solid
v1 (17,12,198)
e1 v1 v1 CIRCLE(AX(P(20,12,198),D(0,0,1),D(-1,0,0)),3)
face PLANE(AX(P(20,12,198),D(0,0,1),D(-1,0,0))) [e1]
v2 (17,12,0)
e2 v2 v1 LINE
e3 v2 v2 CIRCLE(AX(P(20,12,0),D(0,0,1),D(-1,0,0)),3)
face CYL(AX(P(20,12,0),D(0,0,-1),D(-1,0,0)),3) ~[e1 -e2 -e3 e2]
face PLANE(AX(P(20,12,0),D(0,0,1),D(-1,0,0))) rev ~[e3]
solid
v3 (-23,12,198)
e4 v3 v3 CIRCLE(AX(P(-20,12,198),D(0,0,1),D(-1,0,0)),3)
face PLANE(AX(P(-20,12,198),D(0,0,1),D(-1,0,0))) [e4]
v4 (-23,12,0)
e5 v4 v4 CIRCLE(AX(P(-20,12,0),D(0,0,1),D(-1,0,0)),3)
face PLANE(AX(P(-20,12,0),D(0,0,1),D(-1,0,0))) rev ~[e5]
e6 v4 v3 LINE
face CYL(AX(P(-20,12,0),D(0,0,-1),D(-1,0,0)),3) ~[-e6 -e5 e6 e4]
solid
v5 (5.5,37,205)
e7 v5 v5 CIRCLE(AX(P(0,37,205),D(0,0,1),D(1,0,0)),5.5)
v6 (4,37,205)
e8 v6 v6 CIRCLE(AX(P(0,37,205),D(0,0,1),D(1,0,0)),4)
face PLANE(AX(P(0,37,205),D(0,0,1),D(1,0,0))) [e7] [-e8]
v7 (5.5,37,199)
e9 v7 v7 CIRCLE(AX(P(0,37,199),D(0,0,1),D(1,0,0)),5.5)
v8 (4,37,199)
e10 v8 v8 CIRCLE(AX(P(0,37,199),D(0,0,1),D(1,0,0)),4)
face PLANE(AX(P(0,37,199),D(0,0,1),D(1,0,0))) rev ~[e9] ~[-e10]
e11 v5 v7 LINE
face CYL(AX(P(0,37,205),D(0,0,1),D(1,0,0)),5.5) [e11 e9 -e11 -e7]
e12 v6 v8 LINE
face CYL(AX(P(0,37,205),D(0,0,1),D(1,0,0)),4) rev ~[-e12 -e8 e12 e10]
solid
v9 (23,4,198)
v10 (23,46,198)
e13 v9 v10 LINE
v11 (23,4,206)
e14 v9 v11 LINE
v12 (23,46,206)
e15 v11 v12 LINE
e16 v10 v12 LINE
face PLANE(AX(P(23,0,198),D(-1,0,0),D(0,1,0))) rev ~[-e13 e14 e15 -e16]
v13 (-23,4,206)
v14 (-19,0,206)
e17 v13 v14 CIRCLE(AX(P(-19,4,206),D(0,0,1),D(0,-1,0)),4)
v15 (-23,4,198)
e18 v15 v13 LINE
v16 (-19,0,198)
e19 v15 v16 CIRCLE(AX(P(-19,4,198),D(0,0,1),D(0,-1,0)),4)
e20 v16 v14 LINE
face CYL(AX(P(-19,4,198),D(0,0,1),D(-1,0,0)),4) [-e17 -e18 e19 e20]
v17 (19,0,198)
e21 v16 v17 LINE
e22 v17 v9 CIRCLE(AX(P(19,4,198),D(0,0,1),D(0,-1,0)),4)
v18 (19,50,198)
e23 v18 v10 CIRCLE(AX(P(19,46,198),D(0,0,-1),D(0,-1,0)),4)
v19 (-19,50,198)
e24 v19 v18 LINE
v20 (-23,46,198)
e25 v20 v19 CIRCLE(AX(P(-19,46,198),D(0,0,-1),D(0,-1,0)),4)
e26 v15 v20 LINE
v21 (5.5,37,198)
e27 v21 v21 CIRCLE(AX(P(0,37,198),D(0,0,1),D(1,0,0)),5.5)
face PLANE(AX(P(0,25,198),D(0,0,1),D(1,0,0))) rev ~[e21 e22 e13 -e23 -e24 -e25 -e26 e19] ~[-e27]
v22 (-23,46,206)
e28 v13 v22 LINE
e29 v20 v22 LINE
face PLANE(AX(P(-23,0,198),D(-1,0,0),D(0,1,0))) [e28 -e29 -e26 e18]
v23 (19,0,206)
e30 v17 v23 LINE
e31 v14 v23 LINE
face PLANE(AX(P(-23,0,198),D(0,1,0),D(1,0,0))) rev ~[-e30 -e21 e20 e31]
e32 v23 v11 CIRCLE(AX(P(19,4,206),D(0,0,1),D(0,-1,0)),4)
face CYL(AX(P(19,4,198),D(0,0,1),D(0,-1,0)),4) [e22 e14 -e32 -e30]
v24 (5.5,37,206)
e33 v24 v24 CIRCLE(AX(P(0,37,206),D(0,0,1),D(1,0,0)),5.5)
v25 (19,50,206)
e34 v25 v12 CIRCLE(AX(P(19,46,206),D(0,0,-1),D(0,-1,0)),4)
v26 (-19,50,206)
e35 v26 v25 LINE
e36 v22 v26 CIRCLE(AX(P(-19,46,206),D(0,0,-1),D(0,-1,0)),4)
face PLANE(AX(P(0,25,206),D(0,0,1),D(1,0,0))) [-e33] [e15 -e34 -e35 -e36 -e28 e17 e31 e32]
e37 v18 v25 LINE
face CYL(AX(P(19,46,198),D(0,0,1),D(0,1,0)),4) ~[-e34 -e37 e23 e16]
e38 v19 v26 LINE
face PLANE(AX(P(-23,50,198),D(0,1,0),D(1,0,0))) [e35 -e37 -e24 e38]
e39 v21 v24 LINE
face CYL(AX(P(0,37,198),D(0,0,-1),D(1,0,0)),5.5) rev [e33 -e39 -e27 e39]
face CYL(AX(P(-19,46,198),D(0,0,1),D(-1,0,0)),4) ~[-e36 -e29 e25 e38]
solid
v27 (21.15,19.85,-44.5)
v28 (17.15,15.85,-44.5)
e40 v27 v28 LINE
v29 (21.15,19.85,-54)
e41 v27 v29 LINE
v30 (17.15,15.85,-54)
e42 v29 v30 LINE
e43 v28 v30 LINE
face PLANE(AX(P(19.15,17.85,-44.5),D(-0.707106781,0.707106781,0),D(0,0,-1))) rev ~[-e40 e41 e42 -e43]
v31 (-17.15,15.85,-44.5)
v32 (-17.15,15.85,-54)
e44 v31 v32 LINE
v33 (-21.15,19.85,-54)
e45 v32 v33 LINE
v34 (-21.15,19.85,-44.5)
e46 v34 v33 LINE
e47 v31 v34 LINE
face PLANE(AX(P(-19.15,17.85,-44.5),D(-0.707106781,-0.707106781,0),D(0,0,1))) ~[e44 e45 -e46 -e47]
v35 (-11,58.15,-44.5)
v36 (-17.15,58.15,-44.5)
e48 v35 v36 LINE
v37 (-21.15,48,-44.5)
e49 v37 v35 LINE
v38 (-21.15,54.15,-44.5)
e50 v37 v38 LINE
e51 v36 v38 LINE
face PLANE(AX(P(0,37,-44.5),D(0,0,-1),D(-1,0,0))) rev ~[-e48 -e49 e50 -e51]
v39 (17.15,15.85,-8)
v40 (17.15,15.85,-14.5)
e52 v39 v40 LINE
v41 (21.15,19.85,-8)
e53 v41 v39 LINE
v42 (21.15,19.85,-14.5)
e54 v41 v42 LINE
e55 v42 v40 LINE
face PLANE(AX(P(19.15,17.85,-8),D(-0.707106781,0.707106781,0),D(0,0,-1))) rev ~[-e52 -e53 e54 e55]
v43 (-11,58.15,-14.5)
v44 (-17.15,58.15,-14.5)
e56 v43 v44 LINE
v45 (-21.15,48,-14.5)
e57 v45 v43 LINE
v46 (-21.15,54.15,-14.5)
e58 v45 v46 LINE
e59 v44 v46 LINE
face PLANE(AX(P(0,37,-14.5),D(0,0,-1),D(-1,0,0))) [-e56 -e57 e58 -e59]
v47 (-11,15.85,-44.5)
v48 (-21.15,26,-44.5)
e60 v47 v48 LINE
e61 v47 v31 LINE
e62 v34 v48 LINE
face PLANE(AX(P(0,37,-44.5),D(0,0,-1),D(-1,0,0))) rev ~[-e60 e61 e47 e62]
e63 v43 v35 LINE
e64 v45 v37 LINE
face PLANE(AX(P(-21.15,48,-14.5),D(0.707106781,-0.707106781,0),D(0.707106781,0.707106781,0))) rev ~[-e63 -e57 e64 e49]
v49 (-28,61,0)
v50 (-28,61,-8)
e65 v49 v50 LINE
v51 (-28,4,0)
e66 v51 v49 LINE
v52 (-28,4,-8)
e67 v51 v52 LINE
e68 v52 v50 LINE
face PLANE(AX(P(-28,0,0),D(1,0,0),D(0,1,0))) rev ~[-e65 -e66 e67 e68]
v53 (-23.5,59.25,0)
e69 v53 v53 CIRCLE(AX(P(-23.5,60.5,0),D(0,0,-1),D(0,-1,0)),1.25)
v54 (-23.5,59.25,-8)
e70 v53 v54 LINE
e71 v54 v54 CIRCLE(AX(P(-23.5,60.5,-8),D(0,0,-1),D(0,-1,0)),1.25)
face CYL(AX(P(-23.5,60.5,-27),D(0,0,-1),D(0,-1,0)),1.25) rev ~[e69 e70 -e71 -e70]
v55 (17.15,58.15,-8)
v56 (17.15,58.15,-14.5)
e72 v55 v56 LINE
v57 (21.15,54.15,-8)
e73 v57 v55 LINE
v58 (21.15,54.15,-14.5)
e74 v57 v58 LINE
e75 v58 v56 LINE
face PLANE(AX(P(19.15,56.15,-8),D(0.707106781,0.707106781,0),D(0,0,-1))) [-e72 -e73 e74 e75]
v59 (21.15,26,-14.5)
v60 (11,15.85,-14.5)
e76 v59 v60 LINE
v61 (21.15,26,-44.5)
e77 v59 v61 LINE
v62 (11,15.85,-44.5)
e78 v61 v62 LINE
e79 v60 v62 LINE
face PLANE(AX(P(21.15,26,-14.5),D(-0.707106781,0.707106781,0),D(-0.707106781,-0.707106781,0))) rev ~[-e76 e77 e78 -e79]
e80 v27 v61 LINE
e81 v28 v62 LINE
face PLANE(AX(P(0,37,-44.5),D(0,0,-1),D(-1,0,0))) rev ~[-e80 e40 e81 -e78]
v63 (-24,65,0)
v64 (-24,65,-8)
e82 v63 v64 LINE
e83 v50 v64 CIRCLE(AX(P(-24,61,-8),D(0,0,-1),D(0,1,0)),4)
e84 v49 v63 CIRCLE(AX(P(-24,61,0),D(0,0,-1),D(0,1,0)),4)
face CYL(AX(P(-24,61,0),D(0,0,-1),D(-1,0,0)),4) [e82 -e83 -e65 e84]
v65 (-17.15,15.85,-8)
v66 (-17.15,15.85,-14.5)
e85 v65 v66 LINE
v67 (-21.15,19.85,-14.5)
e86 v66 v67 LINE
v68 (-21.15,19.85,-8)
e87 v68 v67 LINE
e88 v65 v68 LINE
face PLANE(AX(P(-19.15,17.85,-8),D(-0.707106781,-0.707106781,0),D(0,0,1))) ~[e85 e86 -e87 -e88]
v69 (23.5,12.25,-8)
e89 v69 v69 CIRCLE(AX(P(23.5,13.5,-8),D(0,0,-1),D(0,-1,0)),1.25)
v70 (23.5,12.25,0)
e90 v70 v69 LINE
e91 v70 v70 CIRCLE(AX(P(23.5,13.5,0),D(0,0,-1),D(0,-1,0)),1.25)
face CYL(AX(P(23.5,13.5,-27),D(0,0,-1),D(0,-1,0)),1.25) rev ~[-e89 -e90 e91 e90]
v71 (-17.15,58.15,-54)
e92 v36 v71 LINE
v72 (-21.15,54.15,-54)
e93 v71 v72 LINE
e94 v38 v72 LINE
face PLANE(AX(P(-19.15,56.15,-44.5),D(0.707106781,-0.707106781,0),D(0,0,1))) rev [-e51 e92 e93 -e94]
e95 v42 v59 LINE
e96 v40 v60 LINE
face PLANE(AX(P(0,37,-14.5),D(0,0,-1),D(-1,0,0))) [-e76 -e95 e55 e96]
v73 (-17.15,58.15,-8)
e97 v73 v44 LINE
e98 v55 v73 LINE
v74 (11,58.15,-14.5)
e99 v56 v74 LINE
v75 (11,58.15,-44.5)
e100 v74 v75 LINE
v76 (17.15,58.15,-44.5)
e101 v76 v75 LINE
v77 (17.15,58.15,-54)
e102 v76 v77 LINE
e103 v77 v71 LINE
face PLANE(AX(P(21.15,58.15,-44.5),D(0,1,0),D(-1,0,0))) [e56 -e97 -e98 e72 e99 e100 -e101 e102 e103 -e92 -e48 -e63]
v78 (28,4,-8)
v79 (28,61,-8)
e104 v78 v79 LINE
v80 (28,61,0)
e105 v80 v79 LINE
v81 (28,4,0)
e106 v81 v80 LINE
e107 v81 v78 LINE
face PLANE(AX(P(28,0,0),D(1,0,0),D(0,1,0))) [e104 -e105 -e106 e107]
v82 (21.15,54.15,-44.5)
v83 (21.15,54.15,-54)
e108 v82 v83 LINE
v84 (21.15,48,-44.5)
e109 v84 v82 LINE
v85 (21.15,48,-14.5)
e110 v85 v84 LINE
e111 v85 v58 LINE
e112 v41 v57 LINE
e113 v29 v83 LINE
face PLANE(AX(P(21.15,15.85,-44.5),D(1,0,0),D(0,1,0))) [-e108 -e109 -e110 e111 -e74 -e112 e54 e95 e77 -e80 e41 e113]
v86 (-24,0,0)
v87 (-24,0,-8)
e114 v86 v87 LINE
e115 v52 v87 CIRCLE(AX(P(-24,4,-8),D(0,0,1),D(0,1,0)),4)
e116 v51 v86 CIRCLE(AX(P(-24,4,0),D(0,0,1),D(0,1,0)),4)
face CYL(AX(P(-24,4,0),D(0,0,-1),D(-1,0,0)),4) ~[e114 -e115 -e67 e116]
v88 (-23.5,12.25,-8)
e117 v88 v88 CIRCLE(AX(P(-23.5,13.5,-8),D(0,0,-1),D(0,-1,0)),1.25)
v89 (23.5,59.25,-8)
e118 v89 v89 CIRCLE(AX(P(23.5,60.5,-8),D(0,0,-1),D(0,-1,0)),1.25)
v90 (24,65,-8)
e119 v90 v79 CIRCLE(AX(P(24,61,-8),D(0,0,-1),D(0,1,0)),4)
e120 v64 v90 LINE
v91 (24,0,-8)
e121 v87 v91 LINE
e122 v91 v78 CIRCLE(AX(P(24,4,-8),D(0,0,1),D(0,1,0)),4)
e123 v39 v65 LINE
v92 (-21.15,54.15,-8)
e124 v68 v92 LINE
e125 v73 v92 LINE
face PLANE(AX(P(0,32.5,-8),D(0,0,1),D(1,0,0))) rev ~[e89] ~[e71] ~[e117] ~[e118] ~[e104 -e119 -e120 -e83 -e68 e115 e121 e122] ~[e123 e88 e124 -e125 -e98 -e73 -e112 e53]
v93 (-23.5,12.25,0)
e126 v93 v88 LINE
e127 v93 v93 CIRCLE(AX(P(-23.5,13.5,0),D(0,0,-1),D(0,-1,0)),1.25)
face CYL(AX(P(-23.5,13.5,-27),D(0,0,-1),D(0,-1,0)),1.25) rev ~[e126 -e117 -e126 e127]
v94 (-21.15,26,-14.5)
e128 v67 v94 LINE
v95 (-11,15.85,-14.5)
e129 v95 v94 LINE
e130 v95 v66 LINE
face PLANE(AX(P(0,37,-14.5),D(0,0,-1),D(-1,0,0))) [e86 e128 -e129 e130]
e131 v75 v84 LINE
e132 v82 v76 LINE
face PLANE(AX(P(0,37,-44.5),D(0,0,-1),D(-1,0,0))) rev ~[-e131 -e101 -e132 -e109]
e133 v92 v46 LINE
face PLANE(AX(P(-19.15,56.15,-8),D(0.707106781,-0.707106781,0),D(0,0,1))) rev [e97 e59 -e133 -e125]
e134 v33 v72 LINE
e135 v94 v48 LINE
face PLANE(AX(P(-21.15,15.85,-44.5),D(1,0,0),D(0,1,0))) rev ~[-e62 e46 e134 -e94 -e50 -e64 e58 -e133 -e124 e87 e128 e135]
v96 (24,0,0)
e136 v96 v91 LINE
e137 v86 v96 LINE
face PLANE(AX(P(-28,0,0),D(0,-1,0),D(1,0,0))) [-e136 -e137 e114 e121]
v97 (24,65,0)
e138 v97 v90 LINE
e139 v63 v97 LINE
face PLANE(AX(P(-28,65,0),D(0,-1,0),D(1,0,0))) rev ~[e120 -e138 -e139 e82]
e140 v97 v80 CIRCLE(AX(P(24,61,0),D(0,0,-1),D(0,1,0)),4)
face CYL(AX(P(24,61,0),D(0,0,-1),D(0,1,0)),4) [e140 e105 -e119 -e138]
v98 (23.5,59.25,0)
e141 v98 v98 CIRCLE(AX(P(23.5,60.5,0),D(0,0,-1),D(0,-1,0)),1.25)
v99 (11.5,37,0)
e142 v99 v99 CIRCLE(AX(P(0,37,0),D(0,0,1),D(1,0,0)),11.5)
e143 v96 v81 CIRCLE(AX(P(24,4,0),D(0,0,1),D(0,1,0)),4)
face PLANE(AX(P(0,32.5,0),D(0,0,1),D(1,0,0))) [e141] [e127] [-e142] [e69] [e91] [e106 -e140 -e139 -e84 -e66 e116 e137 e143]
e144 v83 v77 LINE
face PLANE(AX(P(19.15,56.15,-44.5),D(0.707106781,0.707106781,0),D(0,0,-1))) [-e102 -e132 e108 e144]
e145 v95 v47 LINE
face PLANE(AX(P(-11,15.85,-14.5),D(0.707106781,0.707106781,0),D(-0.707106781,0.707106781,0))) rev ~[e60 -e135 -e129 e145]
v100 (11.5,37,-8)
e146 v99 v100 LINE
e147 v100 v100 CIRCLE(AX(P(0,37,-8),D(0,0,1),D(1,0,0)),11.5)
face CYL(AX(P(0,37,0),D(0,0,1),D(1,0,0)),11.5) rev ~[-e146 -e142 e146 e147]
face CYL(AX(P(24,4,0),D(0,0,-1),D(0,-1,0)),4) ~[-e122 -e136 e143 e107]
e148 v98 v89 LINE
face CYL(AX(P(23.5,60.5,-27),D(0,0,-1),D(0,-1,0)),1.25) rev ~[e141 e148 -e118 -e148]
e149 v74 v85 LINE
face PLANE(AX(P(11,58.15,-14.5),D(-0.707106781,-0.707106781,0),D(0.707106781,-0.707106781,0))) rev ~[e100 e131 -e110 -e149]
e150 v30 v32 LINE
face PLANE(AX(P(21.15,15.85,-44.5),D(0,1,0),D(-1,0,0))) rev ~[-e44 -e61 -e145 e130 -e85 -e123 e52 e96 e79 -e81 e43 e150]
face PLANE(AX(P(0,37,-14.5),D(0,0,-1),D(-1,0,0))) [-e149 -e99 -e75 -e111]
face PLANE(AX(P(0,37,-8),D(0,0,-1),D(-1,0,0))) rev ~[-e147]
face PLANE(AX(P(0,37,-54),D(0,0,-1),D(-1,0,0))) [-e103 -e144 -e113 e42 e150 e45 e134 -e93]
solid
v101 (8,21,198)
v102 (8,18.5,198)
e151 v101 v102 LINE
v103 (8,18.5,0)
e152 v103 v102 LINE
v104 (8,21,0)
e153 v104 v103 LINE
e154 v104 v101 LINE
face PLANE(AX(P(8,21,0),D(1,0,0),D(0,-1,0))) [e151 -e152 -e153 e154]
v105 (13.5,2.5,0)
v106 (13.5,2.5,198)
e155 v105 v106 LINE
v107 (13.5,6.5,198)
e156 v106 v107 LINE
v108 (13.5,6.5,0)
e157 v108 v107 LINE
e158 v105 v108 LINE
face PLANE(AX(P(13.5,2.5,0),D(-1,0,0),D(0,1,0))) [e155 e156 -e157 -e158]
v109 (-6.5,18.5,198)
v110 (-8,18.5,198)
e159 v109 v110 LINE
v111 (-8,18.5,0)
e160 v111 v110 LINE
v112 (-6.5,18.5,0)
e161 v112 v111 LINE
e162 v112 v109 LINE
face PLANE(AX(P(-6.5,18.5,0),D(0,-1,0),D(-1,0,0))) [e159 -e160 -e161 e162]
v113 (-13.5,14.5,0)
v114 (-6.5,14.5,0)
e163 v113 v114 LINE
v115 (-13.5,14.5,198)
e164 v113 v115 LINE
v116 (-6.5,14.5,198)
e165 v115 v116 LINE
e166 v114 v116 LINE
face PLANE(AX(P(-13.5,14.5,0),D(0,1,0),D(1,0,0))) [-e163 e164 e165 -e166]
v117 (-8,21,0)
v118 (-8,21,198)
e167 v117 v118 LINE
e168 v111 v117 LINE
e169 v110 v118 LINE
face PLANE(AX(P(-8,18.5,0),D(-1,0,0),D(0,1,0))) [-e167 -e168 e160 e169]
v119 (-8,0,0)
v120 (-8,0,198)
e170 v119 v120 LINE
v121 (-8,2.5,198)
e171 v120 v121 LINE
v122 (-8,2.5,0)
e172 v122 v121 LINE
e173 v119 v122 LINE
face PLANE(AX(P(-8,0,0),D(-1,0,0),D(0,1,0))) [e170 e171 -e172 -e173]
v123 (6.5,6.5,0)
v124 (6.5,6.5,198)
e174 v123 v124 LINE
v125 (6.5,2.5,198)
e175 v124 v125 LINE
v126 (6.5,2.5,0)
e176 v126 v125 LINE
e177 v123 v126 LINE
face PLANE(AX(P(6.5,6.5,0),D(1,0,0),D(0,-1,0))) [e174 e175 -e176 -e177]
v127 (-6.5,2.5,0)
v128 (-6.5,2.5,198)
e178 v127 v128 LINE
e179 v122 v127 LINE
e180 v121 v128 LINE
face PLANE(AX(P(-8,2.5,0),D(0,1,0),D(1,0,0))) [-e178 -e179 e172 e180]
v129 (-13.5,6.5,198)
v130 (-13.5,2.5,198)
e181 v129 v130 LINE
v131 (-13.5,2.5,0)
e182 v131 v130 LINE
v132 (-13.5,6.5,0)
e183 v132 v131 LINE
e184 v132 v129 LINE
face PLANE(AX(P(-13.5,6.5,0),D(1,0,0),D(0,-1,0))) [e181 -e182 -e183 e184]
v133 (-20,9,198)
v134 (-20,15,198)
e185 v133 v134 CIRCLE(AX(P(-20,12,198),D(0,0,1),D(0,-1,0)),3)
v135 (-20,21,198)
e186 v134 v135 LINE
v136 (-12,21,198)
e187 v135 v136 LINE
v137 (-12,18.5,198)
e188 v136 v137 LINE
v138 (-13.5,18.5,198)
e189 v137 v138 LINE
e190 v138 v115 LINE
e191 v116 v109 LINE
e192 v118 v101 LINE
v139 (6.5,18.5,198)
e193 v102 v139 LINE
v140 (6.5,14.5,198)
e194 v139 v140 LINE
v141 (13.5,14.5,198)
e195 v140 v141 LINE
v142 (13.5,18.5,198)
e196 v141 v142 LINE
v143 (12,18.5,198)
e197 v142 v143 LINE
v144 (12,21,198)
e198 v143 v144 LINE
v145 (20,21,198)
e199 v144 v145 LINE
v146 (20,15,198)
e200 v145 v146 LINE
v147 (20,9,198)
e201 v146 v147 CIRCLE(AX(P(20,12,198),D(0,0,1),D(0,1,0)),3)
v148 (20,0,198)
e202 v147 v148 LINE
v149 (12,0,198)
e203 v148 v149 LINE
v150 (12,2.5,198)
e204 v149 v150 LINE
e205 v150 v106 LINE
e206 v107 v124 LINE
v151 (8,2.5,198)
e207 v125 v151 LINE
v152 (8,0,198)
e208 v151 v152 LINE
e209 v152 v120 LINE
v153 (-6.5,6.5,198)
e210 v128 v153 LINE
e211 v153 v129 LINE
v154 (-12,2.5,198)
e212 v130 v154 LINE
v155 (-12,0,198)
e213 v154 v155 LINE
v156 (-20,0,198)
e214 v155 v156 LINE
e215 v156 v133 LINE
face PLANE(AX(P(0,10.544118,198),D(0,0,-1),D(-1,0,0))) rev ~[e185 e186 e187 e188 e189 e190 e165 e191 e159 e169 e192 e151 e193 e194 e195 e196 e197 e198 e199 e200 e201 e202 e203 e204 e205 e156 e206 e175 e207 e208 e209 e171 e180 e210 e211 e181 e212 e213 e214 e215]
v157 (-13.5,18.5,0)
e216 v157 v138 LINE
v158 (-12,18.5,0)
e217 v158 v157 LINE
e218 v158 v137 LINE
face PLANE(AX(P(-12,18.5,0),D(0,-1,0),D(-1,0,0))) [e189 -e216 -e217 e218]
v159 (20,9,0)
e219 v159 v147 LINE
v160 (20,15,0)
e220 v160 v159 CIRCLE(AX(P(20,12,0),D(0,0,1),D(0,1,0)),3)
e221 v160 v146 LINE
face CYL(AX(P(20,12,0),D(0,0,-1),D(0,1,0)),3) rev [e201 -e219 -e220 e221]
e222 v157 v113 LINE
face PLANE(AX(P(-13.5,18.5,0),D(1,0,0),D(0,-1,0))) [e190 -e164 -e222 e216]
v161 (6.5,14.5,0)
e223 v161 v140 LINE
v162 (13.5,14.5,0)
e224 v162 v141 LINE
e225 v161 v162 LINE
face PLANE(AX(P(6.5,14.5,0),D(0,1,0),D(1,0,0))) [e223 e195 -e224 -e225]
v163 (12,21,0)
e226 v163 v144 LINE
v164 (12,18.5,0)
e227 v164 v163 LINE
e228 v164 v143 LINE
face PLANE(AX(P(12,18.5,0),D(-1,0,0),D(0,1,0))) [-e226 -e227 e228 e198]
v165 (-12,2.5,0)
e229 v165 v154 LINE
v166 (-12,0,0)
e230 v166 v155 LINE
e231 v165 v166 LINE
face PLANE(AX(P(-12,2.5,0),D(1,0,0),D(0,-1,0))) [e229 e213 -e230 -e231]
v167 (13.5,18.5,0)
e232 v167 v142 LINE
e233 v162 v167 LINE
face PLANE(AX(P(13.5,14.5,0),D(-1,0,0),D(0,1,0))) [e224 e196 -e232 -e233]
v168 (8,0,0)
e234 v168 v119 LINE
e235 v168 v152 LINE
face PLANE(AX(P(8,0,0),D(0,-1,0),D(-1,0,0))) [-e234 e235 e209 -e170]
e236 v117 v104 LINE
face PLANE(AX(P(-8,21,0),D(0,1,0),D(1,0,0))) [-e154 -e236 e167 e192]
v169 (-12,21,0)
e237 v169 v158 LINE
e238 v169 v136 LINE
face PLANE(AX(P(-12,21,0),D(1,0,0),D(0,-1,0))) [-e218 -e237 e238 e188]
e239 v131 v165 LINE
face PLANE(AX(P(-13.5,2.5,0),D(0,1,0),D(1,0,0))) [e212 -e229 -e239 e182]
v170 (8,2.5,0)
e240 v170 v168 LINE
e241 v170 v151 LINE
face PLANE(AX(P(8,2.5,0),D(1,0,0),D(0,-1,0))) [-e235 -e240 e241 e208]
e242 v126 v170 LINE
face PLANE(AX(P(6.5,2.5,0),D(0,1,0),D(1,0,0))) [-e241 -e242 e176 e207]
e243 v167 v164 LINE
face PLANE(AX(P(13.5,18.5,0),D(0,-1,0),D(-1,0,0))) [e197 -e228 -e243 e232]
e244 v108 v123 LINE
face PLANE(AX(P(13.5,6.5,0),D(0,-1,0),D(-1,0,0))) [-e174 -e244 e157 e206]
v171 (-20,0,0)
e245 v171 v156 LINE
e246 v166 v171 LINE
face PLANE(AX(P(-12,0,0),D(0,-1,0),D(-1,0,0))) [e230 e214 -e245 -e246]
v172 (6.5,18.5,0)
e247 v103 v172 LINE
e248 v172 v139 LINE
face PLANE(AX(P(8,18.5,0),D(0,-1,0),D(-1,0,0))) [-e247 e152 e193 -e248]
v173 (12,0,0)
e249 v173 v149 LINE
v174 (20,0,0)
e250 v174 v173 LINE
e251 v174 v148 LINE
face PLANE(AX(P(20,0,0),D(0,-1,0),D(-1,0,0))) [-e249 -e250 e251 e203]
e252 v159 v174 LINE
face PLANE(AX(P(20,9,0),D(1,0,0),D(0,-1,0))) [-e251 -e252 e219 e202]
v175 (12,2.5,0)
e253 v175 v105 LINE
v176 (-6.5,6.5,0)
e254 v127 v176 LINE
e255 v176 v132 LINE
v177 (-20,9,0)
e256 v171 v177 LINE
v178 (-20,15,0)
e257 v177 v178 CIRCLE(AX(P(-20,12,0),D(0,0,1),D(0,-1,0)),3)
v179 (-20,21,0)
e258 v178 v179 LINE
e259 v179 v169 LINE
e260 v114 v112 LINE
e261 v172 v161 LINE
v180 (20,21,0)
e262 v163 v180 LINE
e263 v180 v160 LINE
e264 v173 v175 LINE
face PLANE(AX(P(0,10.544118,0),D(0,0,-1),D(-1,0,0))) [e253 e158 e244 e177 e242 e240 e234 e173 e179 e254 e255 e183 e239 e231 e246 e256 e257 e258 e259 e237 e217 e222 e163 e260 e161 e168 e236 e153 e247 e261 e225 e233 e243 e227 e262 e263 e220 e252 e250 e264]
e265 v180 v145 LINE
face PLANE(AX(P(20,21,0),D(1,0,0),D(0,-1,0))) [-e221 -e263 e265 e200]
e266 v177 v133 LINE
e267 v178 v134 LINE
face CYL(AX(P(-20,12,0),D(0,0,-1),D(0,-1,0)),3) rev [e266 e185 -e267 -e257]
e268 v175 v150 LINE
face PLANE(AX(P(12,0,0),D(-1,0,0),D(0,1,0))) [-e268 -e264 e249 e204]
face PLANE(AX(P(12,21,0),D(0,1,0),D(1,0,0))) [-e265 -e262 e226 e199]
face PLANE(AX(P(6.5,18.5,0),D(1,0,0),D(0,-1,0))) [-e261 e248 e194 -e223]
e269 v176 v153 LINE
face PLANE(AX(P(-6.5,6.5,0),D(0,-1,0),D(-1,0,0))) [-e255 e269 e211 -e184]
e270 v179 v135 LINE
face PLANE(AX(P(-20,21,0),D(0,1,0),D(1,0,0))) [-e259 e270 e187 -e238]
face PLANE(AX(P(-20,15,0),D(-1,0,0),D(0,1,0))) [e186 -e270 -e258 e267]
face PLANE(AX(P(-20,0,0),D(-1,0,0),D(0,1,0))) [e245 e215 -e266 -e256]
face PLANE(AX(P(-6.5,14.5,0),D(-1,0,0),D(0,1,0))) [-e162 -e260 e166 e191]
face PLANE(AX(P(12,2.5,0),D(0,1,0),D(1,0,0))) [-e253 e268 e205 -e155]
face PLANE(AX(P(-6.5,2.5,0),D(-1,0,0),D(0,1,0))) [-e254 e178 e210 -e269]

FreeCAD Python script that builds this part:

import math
import FreeCAD as App
import Part
import Sketcher


def edges_at(feature, points):
    """Names of the edges that pass closest to the given points."""
    edges = feature.Shape.Edges
    near = lambda p: min(range(len(edges)), key=lambda i: edges[i].distToShape(Part.Vertex(*p))[0])
    return sorted({f"Edge{near(p) + 1}" for p in points})


def add_polygon(sketch, points):
    """Adds a closed chain of lines whose ends are joined by coincident constraints."""
    first, n = sketch.GeometryCount, len(points)
    for a, b in zip(points, points[1:] + points[:1]):
        sketch.addGeometry(Part.LineSegment(App.Vector(*a, 0), App.Vector(*b, 0)), False)
    for i in range(n):
        sketch.addConstraint(Sketcher.Constraint("Coincident", first + i, 2, first + (i + 1) % n, 1))

doc = App.newDocument("Part")
body = doc.addObject("PartDesign::Body", "Body")

sketch1 = doc.addObject("Sketcher::SketchObject", "Sketch")
body.addObject(sketch1)
sketch1.AttachmentSupport = (doc.XY_Plane, [""])
sketch1.MapMode = "FlatFace"
add_polygon(sketch1, [(-28, 65), (-28, 0), (28, 0), (28, 65)])
sketch1.addGeometry(Part.Circle(App.Vector(0, 37, 0), App.Vector(0, 0, 1), 11.5), False)
sketch1.addConstraint([
    Sketcher.Constraint("Vertical", 0),
    Sketcher.Constraint("Horizontal", 1),
    Sketcher.Constraint("Vertical", 2),
    Sketcher.Constraint("Horizontal", 3),
    Sketcher.Constraint("Symmetric", 0, 2, 1, 2, -1, 1),
    Sketcher.Constraint("PointOnObject", 4, 3, -2),
    Sketcher.Constraint("Diameter", 4, 23.0),
    Sketcher.Constraint("DistanceX", 1, 1, 1, 2, 56.0),
    Sketcher.Constraint("DistanceY", 0, 2, 0, 1, 65.0),
    Sketcher.Constraint("DistanceY", -1, 1, 4, 3, 37.0),
])
pad1 = doc.addObject("PartDesign::Pad", "Pad")
body.addObject(pad1)
pad1.Profile = sketch1
pad1.Length = 8
pad1.Reversed = True
doc.recompute()

fillet = doc.addObject("PartDesign::Fillet", "Fillet")
body.addObject(fillet)
fillet.Base = (pad1, edges_at(pad1, [
    (-28, 65, -4),
    (28, 65, -4),
    (28, 0, -4),
    (-28, 0, -4),
]))
fillet.Radius = 4

sketch2 = doc.addObject("Sketcher::SketchObject", "Sketch001")
body.addObject(sketch2)
sketch2.AttachmentSupport = (doc.XY_Plane, [""])
sketch2.MapMode = "FlatFace"
sketch2.AttachmentOffset = App.Placement(App.Vector(0, 0, -8), App.Rotation())
add_polygon(sketch2, [(21.15, 58.15), (21.15, 15.85), (-21.15, 15.85), (-21.15, 58.15)])
sketch2.addConstraint([
    Sketcher.Constraint("Vertical", 0),
    Sketcher.Constraint("Horizontal", 1),
    Sketcher.Constraint("Vertical", 2),
    Sketcher.Constraint("Horizontal", 3),
    Sketcher.Constraint("Equal", 3, 0),
    Sketcher.Constraint("DistanceX", 1, 2, 1, 1, 42.3),
    Sketcher.Constraint("DistanceX", -1, 1, 0, 2, 21.15),
    Sketcher.Constraint("DistanceY", -1, 1, 0, 2, 15.85),
])
pad2 = doc.addObject("PartDesign::Pad", "Pad001")
body.addObject(pad2)
pad2.Profile = sketch2
pad2.Length = 6.5
pad2.Reversed = True

sketch3 = doc.addObject("Sketcher::SketchObject", "Sketch002")
body.addObject(sketch3)
sketch3.AttachmentSupport = (doc.XY_Plane, [""])
sketch3.MapMode = "FlatFace"
sketch3.AttachmentOffset = App.Placement(App.Vector(0, 0, -14.5), App.Rotation())
add_polygon(sketch3, [(11, 58.15), (21.15, 48), (21.15, 26), (11, 15.85), (-11, 15.85), (-21.15, 26), (-21.15, 48), (-11, 58.15)])
sketch3.addConstraint([
    Sketcher.Constraint("Vertical", 1),
    Sketcher.Constraint("Horizontal", 3),
    Sketcher.Constraint("Vertical", 5),
    Sketcher.Constraint("Horizontal", 7),
    Sketcher.Constraint("Symmetric", 1, 2, 4, 2, -2),
    Sketcher.Constraint("Perpendicular", 0, 2),
    Sketcher.Constraint("Perpendicular", 2, 4),
    Sketcher.Constraint("Perpendicular", 4, 6),
    Sketcher.Constraint("Horizontal", 0, 2, 5, 2),
    Sketcher.Constraint("Vertical", 3, 2, 6, 2),
    Sketcher.Constraint("Vertical", 2, 2, 7, 2),
    Sketcher.Constraint("Equal", 7, 1),
    Sketcher.Constraint("DistanceX", 3, 2, 3, 1, 22.0),
    Sketcher.Constraint("DistanceY", -1, 1, 0, 2, 48.0),
    Sketcher.Constraint("DistanceX", 4, 2, 1, 2, 42.3),
])
pad3 = doc.addObject("PartDesign::Pad", "Pad002")
body.addObject(pad3)
pad3.Profile = sketch3
pad3.Length = 30
pad3.Reversed = True

sketch4 = doc.addObject("Sketcher::SketchObject", "Sketch003")
body.addObject(sketch4)
sketch4.AttachmentSupport = (doc.XY_Plane, [""])
sketch4.MapMode = "FlatFace"
sketch4.AttachmentOffset = App.Placement(App.Vector(0, 0, -44.5), App.Rotation())
add_polygon(sketch4, [(21.15, 58.15), (21.15, 15.85), (-21.15, 15.85), (-21.15, 58.15)])
sketch4.addConstraint([
    Sketcher.Constraint("Vertical", 0),
    Sketcher.Constraint("Horizontal", 1),
    Sketcher.Constraint("Vertical", 2),
    Sketcher.Constraint("Horizontal", 3),
    Sketcher.Constraint("Equal", 3, 0),
    Sketcher.Constraint("DistanceX", 1, 2, 1, 1, 42.3),
    Sketcher.Constraint("DistanceX", -1, 1, 0, 2, 21.15),
    Sketcher.Constraint("DistanceY", -1, 1, 0, 2, 15.85),
])
pad4 = doc.addObject("PartDesign::Pad", "Pad003")
body.addObject(pad4)
pad4.Profile = sketch4
pad4.Length = 9.5
pad4.Reversed = True
doc.recompute()

chamfer = doc.addObject("PartDesign::Chamfer", "Chamfer")
body.addObject(chamfer)
chamfer.Base = (pad4, edges_at(pad4, [
    (-21.15, 15.85, -11.25),
    (-21.15, 58.15, -11.25),
    (21.15, 58.15, -11.25),
    (21.15, 15.85, -11.25),
    (21.15, 58.15, -49.25),
    (21.15, 15.85, -49.25),
    (-21.15, 15.85, -49.25),
    (-21.15, 58.15, -49.25),
]))
chamfer.Size = 4

sketch5 = doc.addObject("Sketcher::SketchObject", "Sketch004")
body.addObject(sketch5)
sketch5.AttachmentSupport = (doc.YZ_Plane, [""])
sketch5.MapMode = "FlatFace"
sketch5.AttachmentOffset = App.Placement(App.Vector(0, 0, 23.5), App.Rotation())
add_polygon(sketch5, [(60.5, -54), (60.5, 0), (59.25, 0), (59.25, -54)])
sketch5.addGeometry(Part.LineSegment(App.Vector(60.5, 0, 0), App.Vector(60.5, -54, 0)), True)
sketch5.addConstraint([
    Sketcher.Constraint("Vertical", 0),
    Sketcher.Constraint("Horizontal", 1),
    Sketcher.Constraint("Vertical", 2),
    Sketcher.Constraint("Horizontal", 3),
    Sketcher.Constraint("Vertical", 4),
    Sketcher.Constraint("Coincident", 4, 1, 0, 2),
    Sketcher.Constraint("PointOnObject", 0, 2, -1),
    Sketcher.Constraint("Horizontal", 2, 2, 4, 2),
    Sketcher.Constraint("DistanceY", 0, 1, 0, 2, 54.0),
    Sketcher.Constraint("DistanceX", 1, 2, 1, 1, 1.25),
    Sketcher.Constraint("DistanceX", -1, 1, 0, 2, 60.5),
])
groove = doc.addObject("PartDesign::Groove", "Groove")
body.addObject(groove)
groove.Profile = sketch5
groove.ReferenceAxis = (sketch5, ["Axis0"])
groove.Angle = 360
doc.recompute()

linearpattern = doc.addObject("PartDesign::LinearPattern", "LinearPattern")
body.addObject(linearpattern)
linearpattern.Originals = [groove]
linearpattern.Direction = (doc.X_Axis, [""])
linearpattern.Mode = "offset"
linearpattern.Offset = 47
linearpattern.Occurrences = 2
linearpattern.Reversed = True
body.Tip = linearpattern
doc.recompute()

datumline = doc.addObject("PartDesign::Line", "DatumLine")
body.addObject(datumline)
datumline.Placement = App.Placement(App.Vector(0, 0, 0), App.Rotation(App.Vector(0, 0, 1), App.Vector(-0.707106781, -0.707106781, 0)))
linearpattern2 = doc.addObject("PartDesign::LinearPattern", "LinearPattern001")
body.addObject(linearpattern2)
linearpattern2.Originals = [groove]
linearpattern2.Direction = (datumline, [""])
linearpattern2.Mode = "offset"
linearpattern2.Offset = 66.468037
linearpattern2.Occurrences = 2
body.Tip = linearpattern2
doc.recompute()

linearpattern3 = doc.addObject("PartDesign::LinearPattern", "LinearPattern002")
body.addObject(linearpattern3)
linearpattern3.Originals = [groove]
linearpattern3.Direction = (doc.Y_Axis, [""])
linearpattern3.Mode = "offset"
linearpattern3.Offset = 47
linearpattern3.Occurrences = 2
linearpattern3.Reversed = True
body.Tip = linearpattern3
body2 = doc.addObject("PartDesign::Body", "Body001")

sketch6 = doc.addObject("Sketcher::SketchObject", "Sketch005")
body2.addObject(sketch6)
sketch6.AttachmentSupport = (doc.getObject("XY_Plane001"), [""])
sketch6.MapMode = "FlatFace"
sketch6.addGeometry([
    Part.LineSegment(App.Vector(-8, 0, 0), App.Vector(8, 0, 0)),
    Part.LineSegment(App.Vector(8, 0, 0), App.Vector(8, 2.5, 0)),
    Part.LineSegment(App.Vector(8, 2.5, 0), App.Vector(6.5, 2.5, 0)),
    Part.LineSegment(App.Vector(6.5, 2.5, 0), App.Vector(6.5, 6.5, 0)),
    Part.LineSegment(App.Vector(6.5, 6.5, 0), App.Vector(13.5, 6.5, 0)),
    Part.LineSegment(App.Vector(13.5, 6.5, 0), App.Vector(13.5, 2.5, 0)),
    Part.LineSegment(App.Vector(13.5, 2.5, 0), App.Vector(12, 2.5, 0)),
    Part.LineSegment(App.Vector(12, 2.5, 0), App.Vector(12, 0, 0)),
    Part.LineSegment(App.Vector(12, 0, 0), App.Vector(20, 0, 0)),
    Part.LineSegment(App.Vector(20, 0, 0), App.Vector(20, 9, 0)),
    Part.ArcOfCircle(Part.Circle(App.Vector(20, 12, 0), App.Vector(0, 0, 1), 3), math.radians(90), math.radians(270)),
    Part.LineSegment(App.Vector(20, 15, 0), App.Vector(20, 21, 0)),
    Part.LineSegment(App.Vector(20, 21, 0), App.Vector(12, 21, 0)),
    Part.LineSegment(App.Vector(12, 21, 0), App.Vector(12, 18.5, 0)),
    Part.LineSegment(App.Vector(12, 18.5, 0), App.Vector(13.5, 18.5, 0)),
    Part.LineSegment(App.Vector(13.5, 18.5, 0), App.Vector(13.5, 14.5, 0)),
    Part.LineSegment(App.Vector(13.5, 14.5, 0), App.Vector(6.5, 14.5, 0)),
    Part.LineSegment(App.Vector(6.5, 14.5, 0), App.Vector(6.5, 18.5, 0)),
    Part.LineSegment(App.Vector(6.5, 18.5, 0), App.Vector(8, 18.5, 0)),
    Part.LineSegment(App.Vector(8, 18.5, 0), App.Vector(8, 21, 0)),
    Part.LineSegment(App.Vector(8, 21, 0), App.Vector(-8, 21, 0)),
    Part.LineSegment(App.Vector(-8, 21, 0), App.Vector(-8, 18.5, 0)),
    Part.LineSegment(App.Vector(-8, 18.5, 0), App.Vector(-6.5, 18.5, 0)),
    Part.LineSegment(App.Vector(-6.5, 18.5, 0), App.Vector(-6.5, 14.5, 0)),
    Part.LineSegment(App.Vector(-6.5, 14.5, 0), App.Vector(-13.5, 14.5, 0)),
    Part.LineSegment(App.Vector(-13.5, 14.5, 0), App.Vector(-13.5, 18.5, 0)),
    Part.LineSegment(App.Vector(-13.5, 18.5, 0), App.Vector(-12, 18.5, 0)),
    Part.LineSegment(App.Vector(-12, 18.5, 0), App.Vector(-12, 21, 0)),
    Part.LineSegment(App.Vector(-12, 21, 0), App.Vector(-20, 21, 0)),
    Part.LineSegment(App.Vector(-20, 21, 0), App.Vector(-20, 15, 0)),
    Part.ArcOfCircle(Part.Circle(App.Vector(-20, 12, 0), App.Vector(0, 0, 1), 3), math.radians(-90), math.radians(90)),
    Part.LineSegment(App.Vector(-20, 9, 0), App.Vector(-20, 0, 0)),
    Part.LineSegment(App.Vector(-20, 0, 0), App.Vector(-12, 0, 0)),
    Part.LineSegment(App.Vector(-12, 0, 0), App.Vector(-12, 2.5, 0)),
    Part.LineSegment(App.Vector(-12, 2.5, 0), App.Vector(-13.5, 2.5, 0)),
    Part.LineSegment(App.Vector(-13.5, 2.5, 0), App.Vector(-13.5, 6.5, 0)),
    Part.LineSegment(App.Vector(-13.5, 6.5, 0), App.Vector(-6.5, 6.5, 0)),
    Part.LineSegment(App.Vector(-6.5, 6.5, 0), App.Vector(-6.5, 2.5, 0)),
    Part.LineSegment(App.Vector(-6.5, 2.5, 0), App.Vector(-8, 2.5, 0)),
    Part.LineSegment(App.Vector(-8, 2.5, 0), App.Vector(-8, 0, 0)),
], False)
sketch6.addConstraint([
    Sketcher.Constraint("Coincident", 0, 2, 1, 1),
    Sketcher.Constraint("Coincident", 1, 2, 2, 1),
    Sketcher.Constraint("Coincident", 2, 2, 3, 1),
    Sketcher.Constraint("Coincident", 3, 2, 4, 1),
    Sketcher.Constraint("Coincident", 4, 2, 5, 1),
    Sketcher.Constraint("Coincident", 5, 2, 6, 1),
    Sketcher.Constraint("Coincident", 6, 2, 7, 1),
    Sketcher.Constraint("Coincident", 7, 2, 8, 1),
    Sketcher.Constraint("Coincident", 8, 2, 9, 1),
    Sketcher.Constraint("Coincident", 9, 2, 10, 2),
    Sketcher.Constraint("Coincident", 10, 1, 11, 1),
    Sketcher.Constraint("Coincident", 11, 2, 12, 1),
    Sketcher.Constraint("Coincident", 12, 2, 13, 1),
    Sketcher.Constraint("Coincident", 13, 2, 14, 1),
    Sketcher.Constraint("Coincident", 14, 2, 15, 1),
    Sketcher.Constraint("Coincident", 15, 2, 16, 1),
    Sketcher.Constraint("Coincident", 16, 2, 17, 1),
    Sketcher.Constraint("Coincident", 17, 2, 18, 1),
    Sketcher.Constraint("Coincident", 18, 2, 19, 1),
    Sketcher.Constraint("Coincident", 19, 2, 20, 1),
    Sketcher.Constraint("Coincident", 20, 2, 21, 1),
    Sketcher.Constraint("Coincident", 21, 2, 22, 1),
    Sketcher.Constraint("Coincident", 22, 2, 23, 1),
    Sketcher.Constraint("Coincident", 23, 2, 24, 1),
    Sketcher.Constraint("Coincident", 24, 2, 25, 1),
    Sketcher.Constraint("Coincident", 25, 2, 26, 1),
    Sketcher.Constraint("Coincident", 26, 2, 27, 1),
    Sketcher.Constraint("Coincident", 27, 2, 28, 1),
    Sketcher.Constraint("Coincident", 28, 2, 29, 1),
    Sketcher.Constraint("Coincident", 29, 2, 30, 2),
    Sketcher.Constraint("Coincident", 30, 1, 31, 1),
    Sketcher.Constraint("Coincident", 31, 2, 32, 1),
    Sketcher.Constraint("Coincident", 32, 2, 33, 1),
    Sketcher.Constraint("Coincident", 33, 2, 34, 1),
    Sketcher.Constraint("Coincident", 34, 2, 35, 1),
    Sketcher.Constraint("Coincident", 35, 2, 36, 1),
    Sketcher.Constraint("Coincident", 36, 2, 37, 1),
    Sketcher.Constraint("Coincident", 37, 2, 38, 1),
    Sketcher.Constraint("Coincident", 38, 2, 39, 1),
    Sketcher.Constraint("Coincident", 39, 2, 0, 1),
    Sketcher.Constraint("Horizontal", 0),
    Sketcher.Constraint("Vertical", 1),
    Sketcher.Constraint("Horizontal", 2),
    Sketcher.Constraint("Vertical", 3),
    Sketcher.Constraint("Horizontal", 4),
    Sketcher.Constraint("Vertical", 5),
    Sketcher.Constraint("Horizontal", 6),
    Sketcher.Constraint("Vertical", 7),
    Sketcher.Constraint("Horizontal", 8),
    Sketcher.Constraint("Vertical", 9),
    Sketcher.Constraint("Vertical", 11),
    Sketcher.Constraint("Horizontal", 12),
    Sketcher.Constraint("Vertical", 13),
    Sketcher.Constraint("Horizontal", 14),
    Sketcher.Constraint("Vertical", 15),
    Sketcher.Constraint("Horizontal", 16),
    Sketcher.Constraint("Vertical", 17),
    Sketcher.Constraint("Horizontal", 18),
    Sketcher.Constraint("Vertical", 19),
    Sketcher.Constraint("Horizontal", 20),
    Sketcher.Constraint("Vertical", 21),
    Sketcher.Constraint("Horizontal", 22),
    Sketcher.Constraint("Vertical", 23),
    Sketcher.Constraint("Horizontal", 24),
    Sketcher.Constraint("Vertical", 25),
    Sketcher.Constraint("Horizontal", 26),
    Sketcher.Constraint("Vertical", 27),
    Sketcher.Constraint("Horizontal", 28),
    Sketcher.Constraint("Vertical", 29),
    Sketcher.Constraint("Vertical", 31),
    Sketcher.Constraint("Horizontal", 32),
    Sketcher.Constraint("Vertical", 33),
    Sketcher.Constraint("Horizontal", 34),
    Sketcher.Constraint("Vertical", 35),
    Sketcher.Constraint("Horizontal", 36),
    Sketcher.Constraint("Vertical", 37),
    Sketcher.Constraint("Horizontal", 38),
    Sketcher.Constraint("Vertical", 39),
    Sketcher.Constraint("Equal", 10, 30),
    Sketcher.Constraint("Symmetric", 8, 2, 31, 2, -1, 1),
    Sketcher.Constraint("Symmetric", 0, 2, 39, 2, -1, 1),
    Sketcher.Constraint("Symmetric", 10, 3, 30, 3, -2),
    Sketcher.Constraint("Symmetric", 18, 2, 21, 2, -2),
    Sketcher.Constraint("Symmetric", 16, 2, 23, 2, -2),
    Sketcher.Constraint("Symmetric", 14, 2, 25, 2, -2),
    Sketcher.Constraint("Symmetric", 12, 2, 27, 2, -2),
    Sketcher.Constraint("Symmetric", 7, 2, 32, 2, -2),
    Sketcher.Constraint("Symmetric", 5, 2, 34, 2, -2),
    Sketcher.Constraint("Symmetric", 3, 2, 36, 2, -2),
    Sketcher.Constraint("Horizontal", 2, 2, 5, 2),
    Sketcher.Constraint("Horizontal", 14, 2, 17, 2),
    Sketcher.Constraint("Horizontal", 12, 2, 19, 2),
    Sketcher.Constraint("Horizontal", 34, 2, 37, 2),
    Sketcher.Constraint("Vertical", 10, 3, 8, 2),
    Sketcher.Constraint("Vertical", 9, 2, 10, 1),
    Sketcher.Constraint("Vertical", 7, 2, 12, 2),
    Sketcher.Constraint("Vertical", 5, 2, 14, 2),
    Sketcher.Constraint("Vertical", 3, 2, 16, 2),
    Sketcher.Constraint("Vertical", 1, 2, 18, 2),
    Sketcher.Constraint("Vertical", 30, 3, 28, 2),
    Sketcher.Constraint("Equal", 2, 6),
    Sketcher.Constraint("Equal", 7, 13),
    Sketcher.Constraint("Equal", 5, 15),
    Sketcher.Constraint("Radius", 10, 3.0),
    Sketcher.Constraint("DistanceX", 0, 1, 0, 2, 16.0),
    Sketcher.Constraint("DistanceX", 4, 1, 4, 2, 7.0),
    Sketcher.Constraint("DistanceX", 8, 1, 8, 2, 8.0),
    Sketcher.Constraint("DistanceY", 3, 1, 3, 2, 4.0),
    Sketcher.Constraint("DistanceY", 9, 1, 9, 2, 9.0),
    Sketcher.Constraint("DistanceY", 11, 1, 11, 2, 6.0),
    Sketcher.Constraint("DistanceX", 2, 2, 2, 1, 1.5),
    Sketcher.Constraint("DistanceY", 1, 1, 1, 2, 2.5),
])
pad5 = doc.addObject("PartDesign::Pad", "Pad004")
body2.addObject(pad5)
pad5.Profile = sketch6
pad5.Length = 198
body3 = doc.addObject("PartDesign::Body", "Body002")

sketch7 = doc.addObject("Sketcher::SketchObject", "Sketch006")
body3.addObject(sketch7)
sketch7.AttachmentSupport = (doc.getObject("XY_Plane002"), [""])
sketch7.MapMode = "FlatFace"
sketch7.AttachmentOffset = App.Placement(App.Vector(0, 0, 198), App.Rotation())
add_polygon(sketch7, [(-23, 50), (-23, 0), (23, 0), (23, 50)])
sketch7.addGeometry(Part.Circle(App.Vector(0, 37, 0), App.Vector(0, 0, 1), 5.5), False)
sketch7.addConstraint([
    Sketcher.Constraint("Vertical", 0),
    Sketcher.Constraint("Horizontal", 1),
    Sketcher.Constraint("Vertical", 2),
    Sketcher.Constraint("Horizontal", 3),
    Sketcher.Constraint("Symmetric", 0, 2, 1, 2, -1, 1),
    Sketcher.Constraint("PointOnObject", 4, 3, -2),
    Sketcher.Constraint("Diameter", 4, 11.0),
    Sketcher.Constraint("DistanceX", 1, 1, 1, 2, 46.0),
    Sketcher.Constraint("DistanceY", 0, 2, 0, 1, 50.0),
    Sketcher.Constraint("DistanceY", -1, 1, 4, 3, 37.0),
])
pad6 = doc.addObject("PartDesign::Pad", "Pad005")
body3.addObject(pad6)
pad6.Profile = sketch7
pad6.Length = 8
doc.recompute()

fillet2 = doc.addObject("PartDesign::Fillet", "Fillet001")
body3.addObject(fillet2)
fillet2.Base = (pad6, edges_at(pad6, [
    (-23, 50, 202),
    (23, 50, 202),
    (23, 0, 202),
    (-23, 0, 202),
]))
fillet2.Radius = 4
body4 = doc.addObject("PartDesign::Body", "Body003")

sketch8 = doc.addObject("Sketcher::SketchObject", "Sketch007")
body4.addObject(sketch8)
sketch8.AttachmentSupport = (doc.getObject("XY_Plane003"), [""])
sketch8.MapMode = "FlatFace"
sketch8.AttachmentOffset = App.Placement(App.Vector(0, 0, 205), App.Rotation())
sketch8.addGeometry([
    Part.Circle(App.Vector(0, 37, 0), App.Vector(0, 0, 1), 5.5),
    Part.Circle(App.Vector(0, 37, 0), App.Vector(0, 0, 1), 4),
], False)
sketch8.addConstraint([
    Sketcher.Constraint("Coincident", 1, 3, 0, 3),
    Sketcher.Constraint("PointOnObject", 0, 3, -2),
    Sketcher.Constraint("Diameter", 0, 11.0),
    Sketcher.Constraint("Diameter", 1, 8.0),
    Sketcher.Constraint("DistanceY", -1, 1, 0, 3, 37.0),
])
pad7 = doc.addObject("PartDesign::Pad", "Pad006")
body4.addObject(pad7)
pad7.Profile = sketch8
pad7.Length = 6
pad7.Reversed = True
body5 = doc.addObject("PartDesign::Body", "Body004")

sketch9 = doc.addObject("Sketcher::SketchObject", "Sketch008")
body5.addObject(sketch9)
sketch9.AttachmentSupport = (doc.getObject("XY_Plane004"), [""])
sketch9.MapMode = "FlatFace"
sketch9.addGeometry(Part.Circle(App.Vector(-20, 12, 0), App.Vector(0, 0, 1), 3), False)
sketch9.addConstraint([
    Sketcher.Constraint("Diameter", 0, 6.0),
    Sketcher.Constraint("DistanceX", 0, 3, -1, 1, 20.0),
    Sketcher.Constraint("DistanceY", -1, 1, 0, 3, 12.0),
])
pad8 = doc.addObject("PartDesign::Pad", "Pad007")
body5.addObject(pad8)
pad8.Profile = sketch9
pad8.Length = 198
body6 = doc.addObject("PartDesign::Body", "Body005")

sketch10 = doc.addObject("Sketcher::SketchObject", "Sketch009")
body6.addObject(sketch10)
sketch10.AttachmentSupport = (doc.getObject("XY_Plane005"), [""])
sketch10.MapMode = "FlatFace"
sketch10.addGeometry(Part.Circle(App.Vector(20, 12, 0), App.Vector(0, 0, 1), 3), False)
sketch10.addConstraint([
    Sketcher.Constraint("Diameter", 0, 6.0),
    Sketcher.Constraint("DistanceX", -1, 1, 0, 3, 20.0),
    Sketcher.Constraint("DistanceY", -1, 1, 0, 3, 12.0),
])
pad9 = doc.addObject("PartDesign::Pad", "Pad008")
body6.addObject(pad9)
pad9.Profile = sketch10
pad9.Length = 198

doc.recompute()
